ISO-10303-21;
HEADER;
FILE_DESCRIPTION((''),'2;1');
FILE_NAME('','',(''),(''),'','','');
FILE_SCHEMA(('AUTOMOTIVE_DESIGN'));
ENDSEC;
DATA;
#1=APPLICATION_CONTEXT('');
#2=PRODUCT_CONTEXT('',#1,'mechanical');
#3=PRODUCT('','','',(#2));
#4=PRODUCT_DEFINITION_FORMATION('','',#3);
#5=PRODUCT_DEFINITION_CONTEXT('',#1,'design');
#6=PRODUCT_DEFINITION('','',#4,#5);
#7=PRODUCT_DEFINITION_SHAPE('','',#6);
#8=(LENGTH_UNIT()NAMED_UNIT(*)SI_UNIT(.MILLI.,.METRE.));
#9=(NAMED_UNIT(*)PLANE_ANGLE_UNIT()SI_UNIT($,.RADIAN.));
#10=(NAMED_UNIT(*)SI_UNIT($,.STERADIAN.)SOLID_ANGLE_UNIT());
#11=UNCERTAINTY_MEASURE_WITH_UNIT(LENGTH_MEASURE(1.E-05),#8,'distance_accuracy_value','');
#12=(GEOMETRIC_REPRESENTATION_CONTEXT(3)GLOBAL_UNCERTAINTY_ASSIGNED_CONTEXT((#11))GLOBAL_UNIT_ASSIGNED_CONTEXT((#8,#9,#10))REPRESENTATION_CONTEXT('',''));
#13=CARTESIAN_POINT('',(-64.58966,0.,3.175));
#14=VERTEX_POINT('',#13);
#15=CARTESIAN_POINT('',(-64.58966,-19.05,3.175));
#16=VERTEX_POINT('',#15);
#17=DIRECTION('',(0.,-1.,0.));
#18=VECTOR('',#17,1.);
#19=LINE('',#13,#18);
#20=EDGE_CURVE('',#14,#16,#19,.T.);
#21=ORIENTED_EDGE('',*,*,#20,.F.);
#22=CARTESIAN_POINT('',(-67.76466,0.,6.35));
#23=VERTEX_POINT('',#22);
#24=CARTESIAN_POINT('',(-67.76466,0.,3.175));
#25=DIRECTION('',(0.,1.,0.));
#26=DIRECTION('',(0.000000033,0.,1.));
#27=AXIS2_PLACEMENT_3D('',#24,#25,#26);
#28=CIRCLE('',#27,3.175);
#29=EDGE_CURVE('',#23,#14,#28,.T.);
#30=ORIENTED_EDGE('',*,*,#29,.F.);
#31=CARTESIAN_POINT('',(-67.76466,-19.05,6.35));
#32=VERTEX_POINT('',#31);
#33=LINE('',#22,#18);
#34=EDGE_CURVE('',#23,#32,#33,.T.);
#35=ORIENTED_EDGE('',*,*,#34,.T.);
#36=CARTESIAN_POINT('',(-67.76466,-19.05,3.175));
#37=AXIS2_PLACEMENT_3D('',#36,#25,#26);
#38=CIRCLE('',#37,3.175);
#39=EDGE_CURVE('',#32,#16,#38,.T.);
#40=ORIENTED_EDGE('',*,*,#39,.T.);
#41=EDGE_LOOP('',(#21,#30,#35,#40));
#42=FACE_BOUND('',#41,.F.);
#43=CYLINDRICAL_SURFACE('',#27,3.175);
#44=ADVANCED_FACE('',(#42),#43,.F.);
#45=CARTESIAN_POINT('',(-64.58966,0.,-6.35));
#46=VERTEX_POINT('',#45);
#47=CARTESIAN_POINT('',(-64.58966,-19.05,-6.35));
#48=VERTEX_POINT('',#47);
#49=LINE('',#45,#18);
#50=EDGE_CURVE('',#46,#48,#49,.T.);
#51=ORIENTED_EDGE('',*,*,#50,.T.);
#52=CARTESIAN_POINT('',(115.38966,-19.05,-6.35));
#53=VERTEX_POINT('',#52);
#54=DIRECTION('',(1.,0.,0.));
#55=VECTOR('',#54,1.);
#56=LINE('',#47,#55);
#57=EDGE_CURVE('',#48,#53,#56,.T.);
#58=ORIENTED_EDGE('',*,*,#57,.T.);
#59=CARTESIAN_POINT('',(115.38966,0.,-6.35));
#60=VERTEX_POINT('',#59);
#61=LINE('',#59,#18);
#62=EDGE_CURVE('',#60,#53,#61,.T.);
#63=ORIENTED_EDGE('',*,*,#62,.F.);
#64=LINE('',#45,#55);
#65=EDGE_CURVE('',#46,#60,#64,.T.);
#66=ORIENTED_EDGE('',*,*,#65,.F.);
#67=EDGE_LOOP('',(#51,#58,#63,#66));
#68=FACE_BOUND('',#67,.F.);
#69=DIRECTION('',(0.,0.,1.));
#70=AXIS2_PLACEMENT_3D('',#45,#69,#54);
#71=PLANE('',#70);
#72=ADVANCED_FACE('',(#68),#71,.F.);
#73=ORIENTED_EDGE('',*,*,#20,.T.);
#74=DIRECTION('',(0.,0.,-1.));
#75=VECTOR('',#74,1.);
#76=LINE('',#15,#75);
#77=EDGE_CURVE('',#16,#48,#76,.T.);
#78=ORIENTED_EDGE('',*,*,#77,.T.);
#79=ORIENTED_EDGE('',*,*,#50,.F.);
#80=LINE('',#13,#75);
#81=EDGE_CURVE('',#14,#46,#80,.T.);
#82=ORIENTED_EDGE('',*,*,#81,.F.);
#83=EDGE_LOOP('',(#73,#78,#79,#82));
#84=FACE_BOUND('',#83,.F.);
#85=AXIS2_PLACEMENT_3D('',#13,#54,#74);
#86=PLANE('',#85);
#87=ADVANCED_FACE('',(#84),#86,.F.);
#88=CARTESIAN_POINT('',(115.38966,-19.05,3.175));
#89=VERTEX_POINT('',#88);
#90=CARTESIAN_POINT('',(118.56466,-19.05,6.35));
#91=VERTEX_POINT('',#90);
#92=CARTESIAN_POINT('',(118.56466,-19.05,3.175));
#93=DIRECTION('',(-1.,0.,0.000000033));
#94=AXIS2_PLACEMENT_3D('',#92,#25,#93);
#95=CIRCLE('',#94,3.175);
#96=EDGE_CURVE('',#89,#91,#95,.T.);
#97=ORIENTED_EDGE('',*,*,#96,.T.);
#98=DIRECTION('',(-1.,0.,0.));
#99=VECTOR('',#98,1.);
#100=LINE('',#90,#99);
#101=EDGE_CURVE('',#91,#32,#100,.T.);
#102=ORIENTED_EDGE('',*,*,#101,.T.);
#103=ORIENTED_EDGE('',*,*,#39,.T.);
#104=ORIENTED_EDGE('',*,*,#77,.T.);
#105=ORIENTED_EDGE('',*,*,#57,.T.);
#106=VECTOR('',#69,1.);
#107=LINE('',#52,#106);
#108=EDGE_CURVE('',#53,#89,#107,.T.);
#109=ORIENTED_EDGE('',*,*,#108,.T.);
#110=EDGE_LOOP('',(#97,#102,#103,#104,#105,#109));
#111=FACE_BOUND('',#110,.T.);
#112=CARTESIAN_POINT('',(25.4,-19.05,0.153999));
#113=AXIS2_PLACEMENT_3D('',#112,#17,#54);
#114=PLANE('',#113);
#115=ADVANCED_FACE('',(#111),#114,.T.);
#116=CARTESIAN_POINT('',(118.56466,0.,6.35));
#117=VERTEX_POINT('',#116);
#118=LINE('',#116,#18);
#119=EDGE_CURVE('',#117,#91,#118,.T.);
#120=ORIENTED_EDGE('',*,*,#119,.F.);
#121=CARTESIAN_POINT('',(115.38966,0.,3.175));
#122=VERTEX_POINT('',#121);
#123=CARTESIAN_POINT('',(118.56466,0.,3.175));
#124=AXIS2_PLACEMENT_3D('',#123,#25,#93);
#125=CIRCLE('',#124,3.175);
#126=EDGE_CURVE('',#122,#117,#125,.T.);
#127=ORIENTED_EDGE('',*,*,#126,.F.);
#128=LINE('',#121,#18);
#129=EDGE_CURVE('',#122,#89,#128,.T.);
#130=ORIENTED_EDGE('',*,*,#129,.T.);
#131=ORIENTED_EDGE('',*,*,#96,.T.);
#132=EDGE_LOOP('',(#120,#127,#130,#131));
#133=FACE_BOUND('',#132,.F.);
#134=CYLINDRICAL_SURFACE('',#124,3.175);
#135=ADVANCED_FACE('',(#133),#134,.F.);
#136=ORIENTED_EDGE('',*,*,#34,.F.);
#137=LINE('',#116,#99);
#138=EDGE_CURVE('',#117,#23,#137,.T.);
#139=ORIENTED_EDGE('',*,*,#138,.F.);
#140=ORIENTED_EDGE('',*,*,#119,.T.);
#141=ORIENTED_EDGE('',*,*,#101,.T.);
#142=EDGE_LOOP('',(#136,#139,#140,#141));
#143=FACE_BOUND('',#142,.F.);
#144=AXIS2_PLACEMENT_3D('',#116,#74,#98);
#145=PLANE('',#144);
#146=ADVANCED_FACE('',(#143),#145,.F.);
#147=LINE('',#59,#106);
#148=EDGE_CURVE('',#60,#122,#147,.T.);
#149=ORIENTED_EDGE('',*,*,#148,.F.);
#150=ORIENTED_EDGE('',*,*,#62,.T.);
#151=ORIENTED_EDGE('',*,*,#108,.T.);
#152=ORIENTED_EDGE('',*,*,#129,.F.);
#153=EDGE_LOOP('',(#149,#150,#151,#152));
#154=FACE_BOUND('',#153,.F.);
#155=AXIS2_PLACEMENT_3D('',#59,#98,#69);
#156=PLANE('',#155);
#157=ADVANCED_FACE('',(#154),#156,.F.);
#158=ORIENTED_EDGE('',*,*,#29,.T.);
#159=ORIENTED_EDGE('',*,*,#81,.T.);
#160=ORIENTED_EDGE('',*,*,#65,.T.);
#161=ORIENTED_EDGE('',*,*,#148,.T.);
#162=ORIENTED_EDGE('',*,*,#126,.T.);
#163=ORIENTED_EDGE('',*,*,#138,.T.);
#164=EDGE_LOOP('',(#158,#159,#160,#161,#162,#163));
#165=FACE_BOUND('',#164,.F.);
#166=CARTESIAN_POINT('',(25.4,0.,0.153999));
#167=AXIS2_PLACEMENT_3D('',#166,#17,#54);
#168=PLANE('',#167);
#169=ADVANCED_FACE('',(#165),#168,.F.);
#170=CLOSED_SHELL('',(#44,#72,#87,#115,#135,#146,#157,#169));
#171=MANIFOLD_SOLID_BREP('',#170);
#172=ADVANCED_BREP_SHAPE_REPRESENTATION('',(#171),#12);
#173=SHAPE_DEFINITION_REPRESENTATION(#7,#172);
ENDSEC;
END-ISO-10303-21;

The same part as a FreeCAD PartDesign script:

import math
import FreeCAD as App
import Part
import Sketcher
Q = App.Units.Quantity

doc = App.newDocument("Part")
body = doc.addObject("PartDesign::Body", "Body")

# Sketch on XZ plane
sketch1 = body.newObject("Sketcher::SketchObject", "Sketch")
sketch1.AttachmentSupport = (doc.getObject("XZ_Plane"), [""])
sketch1.MapMode = "FlatFace"
sketch1.addGeometry([
    Part.ArcOfCircle(Part.Circle(App.Vector(118.6, 3.2, 0), App.Vector(0, 0, 1), 3.2), math.radians(90), math.radians(180)),  # 0
    Part.LineSegment(App.Vector(118.6, 6.3, 0), App.Vector(-67.8, 6.3, 0)),  # 1
    Part.ArcOfCircle(Part.Circle(App.Vector(-67.8, 3.2, 0), App.Vector(0, 0, 1), 3.2), math.radians(0), math.radians(90)),  # 2
    Part.LineSegment(App.Vector(-64.6, 3.2, 0), App.Vector(-64.6, -6.3, 0)),  # 3
    Part.LineSegment(App.Vector(-64.6, -6.3, 0), App.Vector(115.4, -6.3, 0)),  # 4
    Part.LineSegment(App.Vector(115.4, -6.3, 0), App.Vector(115.4, 3.2, 0)),  # 5
], False)
sketch1.addConstraint([
    Sketcher.Constraint("Tangent", 0, 1, 1, 1),
    Sketcher.Constraint("Tangent", 1, 2, 2, 2),
    Sketcher.Constraint("Tangent", 2, 1, 3, 1),
    Sketcher.Constraint("Coincident", 3, 2, 4, 1),
    Sketcher.Constraint("Coincident", 4, 2, 5, 1),
    Sketcher.Constraint("Tangent", 5, 2, 0, 2),
    Sketcher.Constraint("Horizontal", 1),
    Sketcher.Constraint("Vertical", 3),
    Sketcher.Constraint("Horizontal", 4),
    Sketcher.Constraint("Vertical", 5),
    Sketcher.Constraint("Equal", 0, 2),
    Sketcher.Constraint("Radius", 0, Q("0.125 in")),
    Sketcher.Constraint("DistanceY", 3, 2, 1, 2, Q("0.5 in")),
    Sketcher.Constraint("DistanceY", -1, 1, 0, 1, Q("0.25 in")),
    Sketcher.Constraint("DistanceX", 1, 2, 1, 1, Q("7.3358 in")),
    Sketcher.Constraint("DistanceX", -1, 1, 0, 3, Q("4.6679 in")),
])
pad1 = body.newObject("PartDesign::Pad", "Pad")
pad1.Profile = sketch1
pad1.Length = Q("0.75 in")

doc.recompute()
